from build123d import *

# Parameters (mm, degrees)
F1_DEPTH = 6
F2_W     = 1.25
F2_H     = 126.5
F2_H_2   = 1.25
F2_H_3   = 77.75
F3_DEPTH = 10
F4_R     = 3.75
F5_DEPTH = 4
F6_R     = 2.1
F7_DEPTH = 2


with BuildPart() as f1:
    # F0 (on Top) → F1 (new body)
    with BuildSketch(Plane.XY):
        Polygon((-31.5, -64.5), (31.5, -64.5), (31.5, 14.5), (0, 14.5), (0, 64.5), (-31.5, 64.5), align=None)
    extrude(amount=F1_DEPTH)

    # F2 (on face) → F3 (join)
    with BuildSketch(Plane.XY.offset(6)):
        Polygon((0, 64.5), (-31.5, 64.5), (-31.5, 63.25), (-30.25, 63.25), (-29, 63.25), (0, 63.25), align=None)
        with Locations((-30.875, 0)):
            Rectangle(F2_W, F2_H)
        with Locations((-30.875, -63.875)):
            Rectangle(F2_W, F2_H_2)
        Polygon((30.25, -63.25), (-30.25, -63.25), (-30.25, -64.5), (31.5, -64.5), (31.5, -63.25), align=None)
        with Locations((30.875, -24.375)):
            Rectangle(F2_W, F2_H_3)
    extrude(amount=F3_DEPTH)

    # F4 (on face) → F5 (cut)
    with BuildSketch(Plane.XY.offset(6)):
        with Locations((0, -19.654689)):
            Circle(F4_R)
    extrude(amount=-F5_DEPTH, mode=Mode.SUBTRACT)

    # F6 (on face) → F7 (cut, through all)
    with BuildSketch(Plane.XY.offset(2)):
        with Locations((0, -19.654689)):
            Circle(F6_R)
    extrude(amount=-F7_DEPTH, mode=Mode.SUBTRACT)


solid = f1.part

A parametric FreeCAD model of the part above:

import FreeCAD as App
import Part
import Sketcher

V = App.Vector


def add_polygon(sketch, points):
    """Adds a closed chain of lines whose ends are joined by coincident constraints."""
    first, n = sketch.GeometryCount, len(points)
    for a, b in zip(points, points[1:] + points[:1]):
        sketch.addGeometry(Part.LineSegment(App.Vector(*a, 0), App.Vector(*b, 0)), False)
    for i in range(n):
        sketch.addConstraint(Sketcher.Constraint("Coincident", first + i, 2, first + (i + 1) % n, 1))

doc = App.newDocument("Part")
body = doc.addObject("PartDesign::Body", "Body")

sketch1 = body.newObject("Sketcher::SketchObject", "Sketch")
sketch1.AttachmentSupport = (doc.getObject("XY_Plane"), [""])
sketch1.MapMode = "FlatFace"
add_polygon(sketch1, [(-32, -64), (32, -64), (32, 14), (0, 14), (0, 64), (-32, 64)])
sketch1.addConstraint([
    Sketcher.Constraint("Horizontal", 0),
    Sketcher.Constraint("Vertical", 1),
    Sketcher.Constraint("Horizontal", 2),
    Sketcher.Constraint("Vertical", 3),
    Sketcher.Constraint("Horizontal", 4),
    Sketcher.Constraint("Vertical", 5),
    Sketcher.Constraint("Symmetric", 0, 2, 4, 2, -1, 1),
    Sketcher.Constraint("PointOnObject", 2, 2, -2),
    Sketcher.Constraint("DistanceX", 0, 1, 0, 2, 63.0),
    Sketcher.Constraint("DistanceY", 1, 1, 1, 2, 79.0),
    Sketcher.Constraint("DistanceY", 3, 1, 3, 2, 50.0),
])
pad1 = body.newObject("PartDesign::Pad", "Pad")
pad1.Profile = sketch1
pad1.Length = 6

sketch2 = body.newObject("Sketcher::SketchObject", "Sketch001")
sketch2.AttachmentSupport = (doc.getObject("XY_Plane"), [""])
sketch2.MapMode = "FlatFace"
sketch2.AttachmentOffset = App.Placement(V(0, 0, 6), App.Rotation())
add_polygon(sketch2, [(0, 64.5), (-31.5, 64.5), (-31.5, -64.5), (31.5, -64.5), (31.5, 14.5), (30.2, 14.5), (30.2, -63.2), (-30.2, -63.2), (-30.2, 63.2), (0, 63.2)])
sketch2.addConstraint([
    Sketcher.Constraint("Horizontal", 0),
    Sketcher.Constraint("Vertical", 1),
    Sketcher.Constraint("Horizontal", 2),
    Sketcher.Constraint("Vertical", 3),
    Sketcher.Constraint("Horizontal", 4),
    Sketcher.Constraint("Vertical", 5),
    Sketcher.Constraint("Horizontal", 6),
    Sketcher.Constraint("Vertical", 7),
    Sketcher.Constraint("Horizontal", 8),
    Sketcher.Constraint("Vertical", 9),
    Sketcher.Constraint("Symmetric", 0, 2, 2, 2, -1, 1),
    Sketcher.Constraint("Symmetric", 5, 2, 7, 2, -1, 1),
    Sketcher.Constraint("PointOnObject", 8, 2, -2),
    Sketcher.Constraint("Equal", 4, 9),
    Sketcher.Constraint("DistanceX", 2, 1, 2, 2, 63.0),
    Sketcher.Constraint("DistanceY", 1, 2, 1, 1, 129.0),
    Sketcher.Constraint("DistanceY", 3, 1, 3, 2, 79.0),
    Sketcher.Constraint("DistanceX", 6, 2, 6, 1, 60.5),
])
pad2 = body.newObject("PartDesign::Pad", "Pad001")
pad2.Profile = sketch2
pad2.Length = 10

sketch3 = body.newObject("Sketcher::SketchObject", "Sketch002")
sketch3.AttachmentSupport = (doc.getObject("XY_Plane"), [""])
sketch3.MapMode = "FlatFace"
sketch3.AttachmentOffset = App.Placement(V(0, 0, 6), App.Rotation())
sketch3.addGeometry(Part.Circle(V(0, -19.7, 0), V(0, 0, 1), 3.8), False)
sketch3.addConstraint([
    Sketcher.Constraint("PointOnObject", 0, 3, -2),
    Sketcher.Constraint("Diameter", 0, 7.5),
    Sketcher.Constraint("DistanceY", 0, 3, -1, 1, 19.654689),
])
pocket1 = body.newObject("PartDesign::Pocket", "Pocket")
pocket1.Profile = sketch3
pocket1.Length = 4

sketch4 = body.newObject("Sketcher::SketchObject", "Sketch003")
sketch4.AttachmentSupport = (doc.getObject("XY_Plane"), [""])
sketch4.MapMode = "FlatFace"
sketch4.AttachmentOffset = App.Placement(V(0, 0, 2), App.Rotation())
sketch4.addGeometry(Part.Circle(V(0, -19.7, 0), V(0, 0, 1), 2.1), False)
sketch4.addConstraint([
    Sketcher.Constraint("PointOnObject", 0, 3, -2),
    Sketcher.Constraint("Diameter", 0, 4.2),
    Sketcher.Constraint("DistanceY", 0, 3, -1, 1, 19.654689),
])
pocket2 = body.newObject("PartDesign::Pocket", "Pocket001")
pocket2.Profile = sketch4
pocket2.Type = "ThroughAll"

doc.recompute()
